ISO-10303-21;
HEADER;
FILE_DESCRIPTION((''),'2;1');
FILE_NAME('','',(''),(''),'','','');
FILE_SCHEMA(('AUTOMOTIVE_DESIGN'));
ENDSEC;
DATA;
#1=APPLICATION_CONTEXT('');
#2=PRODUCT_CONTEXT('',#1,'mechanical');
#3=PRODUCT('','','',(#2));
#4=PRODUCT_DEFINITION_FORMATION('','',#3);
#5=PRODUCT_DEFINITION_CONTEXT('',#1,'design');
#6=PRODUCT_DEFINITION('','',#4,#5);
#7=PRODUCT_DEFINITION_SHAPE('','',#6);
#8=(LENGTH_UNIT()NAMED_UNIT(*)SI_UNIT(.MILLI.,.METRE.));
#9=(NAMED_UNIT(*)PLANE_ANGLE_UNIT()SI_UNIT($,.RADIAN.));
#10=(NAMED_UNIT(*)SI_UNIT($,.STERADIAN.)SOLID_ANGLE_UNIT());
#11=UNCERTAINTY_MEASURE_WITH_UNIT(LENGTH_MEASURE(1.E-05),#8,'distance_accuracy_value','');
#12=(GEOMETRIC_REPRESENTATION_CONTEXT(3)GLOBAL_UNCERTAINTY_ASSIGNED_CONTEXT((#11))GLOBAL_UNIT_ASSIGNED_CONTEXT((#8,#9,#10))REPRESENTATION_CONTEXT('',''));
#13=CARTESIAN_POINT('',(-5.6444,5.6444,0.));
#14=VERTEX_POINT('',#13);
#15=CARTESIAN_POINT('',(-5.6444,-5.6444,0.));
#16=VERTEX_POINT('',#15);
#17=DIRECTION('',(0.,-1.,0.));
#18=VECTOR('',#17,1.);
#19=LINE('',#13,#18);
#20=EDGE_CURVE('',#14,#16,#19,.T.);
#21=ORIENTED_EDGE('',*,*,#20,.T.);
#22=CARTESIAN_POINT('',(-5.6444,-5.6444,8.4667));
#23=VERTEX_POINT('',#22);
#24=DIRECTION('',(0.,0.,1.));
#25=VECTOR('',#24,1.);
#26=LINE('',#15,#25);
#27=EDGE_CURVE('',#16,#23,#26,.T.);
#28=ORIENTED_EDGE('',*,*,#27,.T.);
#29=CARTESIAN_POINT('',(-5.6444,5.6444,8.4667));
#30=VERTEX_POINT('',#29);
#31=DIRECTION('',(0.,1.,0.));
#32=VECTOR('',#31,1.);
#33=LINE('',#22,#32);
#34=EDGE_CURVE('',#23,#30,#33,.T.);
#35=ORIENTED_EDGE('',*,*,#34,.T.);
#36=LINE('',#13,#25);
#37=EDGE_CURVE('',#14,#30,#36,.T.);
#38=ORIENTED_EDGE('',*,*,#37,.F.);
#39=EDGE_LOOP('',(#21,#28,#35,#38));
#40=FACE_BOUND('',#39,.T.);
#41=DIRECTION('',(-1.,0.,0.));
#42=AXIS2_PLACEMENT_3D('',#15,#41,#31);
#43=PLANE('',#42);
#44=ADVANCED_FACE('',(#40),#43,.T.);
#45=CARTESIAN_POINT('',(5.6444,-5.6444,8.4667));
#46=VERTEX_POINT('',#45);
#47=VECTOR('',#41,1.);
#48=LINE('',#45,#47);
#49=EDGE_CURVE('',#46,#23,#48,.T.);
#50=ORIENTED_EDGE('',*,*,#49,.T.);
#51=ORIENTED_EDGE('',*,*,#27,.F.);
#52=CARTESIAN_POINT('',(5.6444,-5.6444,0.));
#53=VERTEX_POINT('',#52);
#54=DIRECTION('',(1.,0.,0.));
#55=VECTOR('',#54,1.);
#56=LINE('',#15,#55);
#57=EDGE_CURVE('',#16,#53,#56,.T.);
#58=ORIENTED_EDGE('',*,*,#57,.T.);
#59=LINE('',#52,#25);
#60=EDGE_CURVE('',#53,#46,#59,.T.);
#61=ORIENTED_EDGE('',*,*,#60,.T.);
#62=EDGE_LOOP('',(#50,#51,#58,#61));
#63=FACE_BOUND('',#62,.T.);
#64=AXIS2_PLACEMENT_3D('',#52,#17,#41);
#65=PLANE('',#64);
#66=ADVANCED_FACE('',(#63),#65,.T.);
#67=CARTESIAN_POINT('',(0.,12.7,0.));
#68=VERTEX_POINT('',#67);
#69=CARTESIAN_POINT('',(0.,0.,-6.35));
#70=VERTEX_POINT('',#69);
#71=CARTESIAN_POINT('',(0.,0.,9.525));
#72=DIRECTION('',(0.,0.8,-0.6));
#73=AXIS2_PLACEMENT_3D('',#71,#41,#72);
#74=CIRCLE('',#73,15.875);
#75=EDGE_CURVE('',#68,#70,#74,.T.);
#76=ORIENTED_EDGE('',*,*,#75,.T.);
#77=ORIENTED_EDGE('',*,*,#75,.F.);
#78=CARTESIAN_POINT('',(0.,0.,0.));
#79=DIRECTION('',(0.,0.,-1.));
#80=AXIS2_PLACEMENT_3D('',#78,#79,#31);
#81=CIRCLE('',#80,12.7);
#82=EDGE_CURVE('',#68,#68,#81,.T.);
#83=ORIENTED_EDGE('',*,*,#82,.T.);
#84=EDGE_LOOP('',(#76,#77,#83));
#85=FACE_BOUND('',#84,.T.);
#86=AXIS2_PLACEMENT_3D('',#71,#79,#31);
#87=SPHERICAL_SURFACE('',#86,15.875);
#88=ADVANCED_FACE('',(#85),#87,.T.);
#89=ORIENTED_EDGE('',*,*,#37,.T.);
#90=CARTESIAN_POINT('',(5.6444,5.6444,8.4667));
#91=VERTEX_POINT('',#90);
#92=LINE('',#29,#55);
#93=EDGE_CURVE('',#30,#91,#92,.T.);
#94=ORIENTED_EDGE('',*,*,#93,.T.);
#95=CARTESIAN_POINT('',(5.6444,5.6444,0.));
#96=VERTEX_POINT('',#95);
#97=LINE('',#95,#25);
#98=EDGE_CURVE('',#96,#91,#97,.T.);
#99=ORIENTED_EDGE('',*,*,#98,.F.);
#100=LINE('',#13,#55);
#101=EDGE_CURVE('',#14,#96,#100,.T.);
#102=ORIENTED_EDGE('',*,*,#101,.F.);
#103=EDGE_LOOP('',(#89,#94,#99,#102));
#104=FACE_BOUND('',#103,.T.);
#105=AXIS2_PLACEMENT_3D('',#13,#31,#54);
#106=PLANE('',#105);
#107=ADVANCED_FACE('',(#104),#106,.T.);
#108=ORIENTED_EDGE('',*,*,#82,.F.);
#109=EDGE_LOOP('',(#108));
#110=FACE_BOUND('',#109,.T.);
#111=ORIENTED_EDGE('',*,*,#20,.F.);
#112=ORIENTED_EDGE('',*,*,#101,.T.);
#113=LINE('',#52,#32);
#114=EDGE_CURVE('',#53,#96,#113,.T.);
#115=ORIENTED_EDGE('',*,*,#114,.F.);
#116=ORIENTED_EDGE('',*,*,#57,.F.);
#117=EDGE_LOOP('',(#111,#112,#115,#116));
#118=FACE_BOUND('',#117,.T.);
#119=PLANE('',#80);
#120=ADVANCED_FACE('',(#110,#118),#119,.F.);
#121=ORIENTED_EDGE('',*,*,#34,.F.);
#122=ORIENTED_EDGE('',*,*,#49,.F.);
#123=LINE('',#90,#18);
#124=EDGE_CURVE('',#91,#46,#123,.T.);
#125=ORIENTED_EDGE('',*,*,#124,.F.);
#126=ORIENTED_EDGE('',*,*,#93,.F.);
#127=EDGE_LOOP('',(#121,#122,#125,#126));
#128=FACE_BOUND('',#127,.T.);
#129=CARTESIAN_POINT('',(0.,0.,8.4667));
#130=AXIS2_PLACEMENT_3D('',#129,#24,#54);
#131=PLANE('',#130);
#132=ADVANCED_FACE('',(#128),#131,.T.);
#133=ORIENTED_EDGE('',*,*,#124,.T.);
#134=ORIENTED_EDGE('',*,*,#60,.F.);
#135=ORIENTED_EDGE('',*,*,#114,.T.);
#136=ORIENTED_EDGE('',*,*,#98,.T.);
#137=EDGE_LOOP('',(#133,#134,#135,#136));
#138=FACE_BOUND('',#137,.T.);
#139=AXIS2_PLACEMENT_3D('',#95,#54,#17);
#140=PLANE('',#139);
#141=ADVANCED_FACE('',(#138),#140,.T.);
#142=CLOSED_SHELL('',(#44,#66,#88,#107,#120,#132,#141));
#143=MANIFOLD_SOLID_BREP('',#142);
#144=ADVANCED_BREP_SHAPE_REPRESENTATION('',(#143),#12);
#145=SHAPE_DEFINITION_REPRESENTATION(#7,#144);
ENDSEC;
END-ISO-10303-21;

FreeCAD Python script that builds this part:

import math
import FreeCAD as App
import Part
import Sketcher
from FreeCAD import Vector
Q = App.Units.Quantity

doc = App.newDocument("Part")
body = doc.addObject("PartDesign::Body", "Body")

# Sketch on XY plane
sketch1 = body.newObject("Sketcher::SketchObject", "Sketch")
sketch1.AttachmentSupport = (doc.getObject("XY_Plane"), [""])
sketch1.MapMode = "FlatFace"
sketch1.addGeometry(Part.LineSegment(Vector(-5.6444, -5.6444, 0), Vector(5.6444, -5.6444, 0)), False)
sketch1.addGeometry(Part.LineSegment(Vector(5.6444, -5.6444, 0), Vector(5.6444, 5.6444, 0)), False)
sketch1.addGeometry(Part.LineSegment(Vector(5.6444, 5.6444, 0), Vector(-5.6444, 5.6444, 0)), False)
sketch1.addGeometry(Part.LineSegment(Vector(-5.6444, 5.6444, 0), Vector(-5.6444, -5.6444, 0)), False)
sketch1.addConstraint(Sketcher.Constraint("Coincident", 0, 2, 1, 1))
sketch1.addConstraint(Sketcher.Constraint("Coincident", 1, 2, 2, 1))
sketch1.addConstraint(Sketcher.Constraint("Coincident", 2, 2, 3, 1))
sketch1.addConstraint(Sketcher.Constraint("Coincident", 3, 2, 0, 1))
sketch1.addConstraint(Sketcher.Constraint("Horizontal", 0))
sketch1.addConstraint(Sketcher.Constraint("Vertical", 1))
sketch1.addConstraint(Sketcher.Constraint("Horizontal", 2))
sketch1.addConstraint(Sketcher.Constraint("Vertical", 3))
sketch1.addConstraint(Sketcher.Constraint("Symmetric", 0, 2, 2, 2, -1, 1))
sketch1.addConstraint(Sketcher.Constraint("Equal", 2, 1))
sketch1.addConstraint(Sketcher.Constraint("DistanceX", 0, 1, 0, 2, Q("11.2888 mm")))
pad1 = body.newObject("PartDesign::Pad", "Pad")
pad1.Profile = sketch1
pad1.Length = 8.4667

# Sketch on YZ plane
sketch2 = body.newObject("Sketcher::SketchObject", "Sketch001")
sketch2.AttachmentSupport = (doc.getObject("YZ_Plane"), [""])
sketch2.MapMode = "FlatFace"
sketch2.addGeometry(Part.LineSegment(Vector(0, -6.35, 0), Vector(0, 0, 0)), False)
sketch2.addGeometry(Part.LineSegment(Vector(0, 0, 0), Vector(12.7, 0, 0)), False)
sketch2.addGeometry(Part.ArcOfCircle(Part.Circle(Vector(0, 9.525, 0), Vector(0, 0, 1), 15.875), math.radians(-90), math.radians(-36.869898)), False)
sketch2.addConstraint(Sketcher.Constraint("Coincident", 0, 2, 1, 1))
sketch2.addConstraint(Sketcher.Constraint("Coincident", 1, 2, 2, 2))
sketch2.addConstraint(Sketcher.Constraint("Coincident", 2, 1, 0, 1))
sketch2.addConstraint(Sketcher.Constraint("Vertical", 0))
sketch2.addConstraint(Sketcher.Constraint("Horizontal", 1))
sketch2.addConstraint(Sketcher.Constraint("Coincident", 0, 2, -1, 1))
sketch2.addConstraint(Sketcher.Constraint("PointOnObject", 2, 3, -2))
sketch2.addConstraint(Sketcher.Constraint("DistanceX", 1, 1, 1, 2, Q("0.5 in")))
sketch2.addConstraint(Sketcher.Constraint("DistanceY", 0, 1, 0, 2, Q("0.25 in")))
revolution = body.newObject("PartDesign::Revolution", "Revolution")
revolution.Profile = sketch2
revolution.ReferenceAxis = (sketch2, ["V_Axis"])
revolution.Angle = 360

doc.recompute()
